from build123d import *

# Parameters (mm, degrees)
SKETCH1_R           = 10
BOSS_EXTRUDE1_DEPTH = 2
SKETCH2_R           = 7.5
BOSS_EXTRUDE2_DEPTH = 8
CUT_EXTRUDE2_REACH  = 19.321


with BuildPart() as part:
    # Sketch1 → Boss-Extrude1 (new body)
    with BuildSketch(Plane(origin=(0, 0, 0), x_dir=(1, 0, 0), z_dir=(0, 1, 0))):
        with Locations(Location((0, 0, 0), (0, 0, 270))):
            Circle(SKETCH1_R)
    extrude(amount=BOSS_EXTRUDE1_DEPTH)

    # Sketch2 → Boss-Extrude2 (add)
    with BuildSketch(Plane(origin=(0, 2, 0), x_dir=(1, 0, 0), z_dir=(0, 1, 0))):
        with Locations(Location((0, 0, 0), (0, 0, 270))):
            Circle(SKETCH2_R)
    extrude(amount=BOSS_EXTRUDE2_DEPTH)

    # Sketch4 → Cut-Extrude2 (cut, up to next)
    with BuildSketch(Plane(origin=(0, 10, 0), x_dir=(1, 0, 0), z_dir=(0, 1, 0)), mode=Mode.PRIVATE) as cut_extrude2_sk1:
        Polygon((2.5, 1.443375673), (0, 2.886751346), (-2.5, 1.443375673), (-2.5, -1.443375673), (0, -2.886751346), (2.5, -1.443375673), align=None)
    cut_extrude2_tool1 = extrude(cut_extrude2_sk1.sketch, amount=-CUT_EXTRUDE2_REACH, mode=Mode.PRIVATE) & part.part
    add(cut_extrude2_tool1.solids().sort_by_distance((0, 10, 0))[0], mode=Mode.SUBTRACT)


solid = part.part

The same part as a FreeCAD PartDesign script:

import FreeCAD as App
import Part
import Sketcher
Q = App.Units.Quantity


def add_polygon(sketch, points):
    """Adds a closed chain of lines whose ends are joined by coincident constraints."""
    first, n = sketch.GeometryCount, len(points)
    for a, b in zip(points, points[1:] + points[:1]):
        sketch.addGeometry(Part.LineSegment(App.Vector(*a, 0), App.Vector(*b, 0)), False)
    for i in range(n):
        sketch.addConstraint(Sketcher.Constraint("Coincident", first + i, 2, first + (i + 1) % n, 1))

doc = App.newDocument("Part")
body = doc.addObject("PartDesign::Body", "Body")

# Sketch on XZ plane
sketch1 = body.newObject("Sketcher::SketchObject", "Sketch")
sketch1.AttachmentSupport = (doc.getObject("XZ_Plane"), [""])
sketch1.MapMode = "FlatFace"
sketch1.addGeometry(Part.Circle(App.Vector(0, 0, 0), App.Vector(0, 0, 1), 10), False)
sketch1.addConstraint([
    Sketcher.Constraint("Coincident", 0, 3, -1, 1),
    Sketcher.Constraint("Diameter", 0, Q("20 mm")),
])
pad1 = body.newObject("PartDesign::Pad", "Pad")
pad1.Profile = sketch1
pad1.Length = 2
pad1.Reversed = True

# Sketch on XZ plane
sketch2 = body.newObject("Sketcher::SketchObject", "Sketch001")
sketch2.AttachmentSupport = (doc.getObject("XZ_Plane"), [""])
sketch2.MapMode = "FlatFace"
sketch2.AttachmentOffset = App.Placement(App.Vector(0, 0, -2), App.Rotation())
sketch2.addGeometry(Part.Circle(App.Vector(0, 0, 0), App.Vector(0, 0, 1), 8), False)
sketch2.addConstraint([
    Sketcher.Constraint("Coincident", 0, 3, -1, 1),
    Sketcher.Constraint("Diameter", 0, Q("15 mm")),
])
pad2 = body.newObject("PartDesign::Pad", "Pad001")
pad2.Profile = sketch2
pad2.Length = 8
pad2.Reversed = True

# Sketch on XZ plane
sketch3 = body.newObject("Sketcher::SketchObject", "Sketch002")
sketch3.AttachmentSupport = (doc.getObject("XZ_Plane"), [""])
sketch3.MapMode = "FlatFace"
sketch3.AttachmentOffset = App.Placement(App.Vector(0, 0, -10), App.Rotation())
add_polygon(sketch3, [(2.5, -1.4), (0, -2.9), (-2.5, -1.4), (-2.5, 1.4), (0, 2.9), (2.5, 1.4)])  # lines 0-5
sketch3.addConstraint([
    Sketcher.Constraint("Vertical", 2),
    Sketcher.Constraint("Vertical", 5),
    Sketcher.Constraint("Symmetric", 0, 2, 3, 2, -1, 1),
    Sketcher.Constraint("Symmetric", 1, 2, 4, 2, -1, 1),
    Sketcher.Constraint("PointOnObject", 0, 2, -2),
    Sketcher.Constraint("Parallel", 0, 3),
    Sketcher.Constraint("Horizontal", 2, 2, 4, 2),
    Sketcher.Constraint("Angle", 0, Q("-150 deg")),
    Sketcher.Constraint("DistanceX", 2, 2, 4, 2, Q("5 mm")),
    Sketcher.Constraint("DistanceY", 2, 1, 2, 2, Q("2.886751 mm")),
])
pocket1 = body.newObject("PartDesign::Pocket", "Pocket")
pocket1.Profile = sketch3
pocket1.Type = "UpToFirst"
pocket1.Reversed = True

doc.recompute()
